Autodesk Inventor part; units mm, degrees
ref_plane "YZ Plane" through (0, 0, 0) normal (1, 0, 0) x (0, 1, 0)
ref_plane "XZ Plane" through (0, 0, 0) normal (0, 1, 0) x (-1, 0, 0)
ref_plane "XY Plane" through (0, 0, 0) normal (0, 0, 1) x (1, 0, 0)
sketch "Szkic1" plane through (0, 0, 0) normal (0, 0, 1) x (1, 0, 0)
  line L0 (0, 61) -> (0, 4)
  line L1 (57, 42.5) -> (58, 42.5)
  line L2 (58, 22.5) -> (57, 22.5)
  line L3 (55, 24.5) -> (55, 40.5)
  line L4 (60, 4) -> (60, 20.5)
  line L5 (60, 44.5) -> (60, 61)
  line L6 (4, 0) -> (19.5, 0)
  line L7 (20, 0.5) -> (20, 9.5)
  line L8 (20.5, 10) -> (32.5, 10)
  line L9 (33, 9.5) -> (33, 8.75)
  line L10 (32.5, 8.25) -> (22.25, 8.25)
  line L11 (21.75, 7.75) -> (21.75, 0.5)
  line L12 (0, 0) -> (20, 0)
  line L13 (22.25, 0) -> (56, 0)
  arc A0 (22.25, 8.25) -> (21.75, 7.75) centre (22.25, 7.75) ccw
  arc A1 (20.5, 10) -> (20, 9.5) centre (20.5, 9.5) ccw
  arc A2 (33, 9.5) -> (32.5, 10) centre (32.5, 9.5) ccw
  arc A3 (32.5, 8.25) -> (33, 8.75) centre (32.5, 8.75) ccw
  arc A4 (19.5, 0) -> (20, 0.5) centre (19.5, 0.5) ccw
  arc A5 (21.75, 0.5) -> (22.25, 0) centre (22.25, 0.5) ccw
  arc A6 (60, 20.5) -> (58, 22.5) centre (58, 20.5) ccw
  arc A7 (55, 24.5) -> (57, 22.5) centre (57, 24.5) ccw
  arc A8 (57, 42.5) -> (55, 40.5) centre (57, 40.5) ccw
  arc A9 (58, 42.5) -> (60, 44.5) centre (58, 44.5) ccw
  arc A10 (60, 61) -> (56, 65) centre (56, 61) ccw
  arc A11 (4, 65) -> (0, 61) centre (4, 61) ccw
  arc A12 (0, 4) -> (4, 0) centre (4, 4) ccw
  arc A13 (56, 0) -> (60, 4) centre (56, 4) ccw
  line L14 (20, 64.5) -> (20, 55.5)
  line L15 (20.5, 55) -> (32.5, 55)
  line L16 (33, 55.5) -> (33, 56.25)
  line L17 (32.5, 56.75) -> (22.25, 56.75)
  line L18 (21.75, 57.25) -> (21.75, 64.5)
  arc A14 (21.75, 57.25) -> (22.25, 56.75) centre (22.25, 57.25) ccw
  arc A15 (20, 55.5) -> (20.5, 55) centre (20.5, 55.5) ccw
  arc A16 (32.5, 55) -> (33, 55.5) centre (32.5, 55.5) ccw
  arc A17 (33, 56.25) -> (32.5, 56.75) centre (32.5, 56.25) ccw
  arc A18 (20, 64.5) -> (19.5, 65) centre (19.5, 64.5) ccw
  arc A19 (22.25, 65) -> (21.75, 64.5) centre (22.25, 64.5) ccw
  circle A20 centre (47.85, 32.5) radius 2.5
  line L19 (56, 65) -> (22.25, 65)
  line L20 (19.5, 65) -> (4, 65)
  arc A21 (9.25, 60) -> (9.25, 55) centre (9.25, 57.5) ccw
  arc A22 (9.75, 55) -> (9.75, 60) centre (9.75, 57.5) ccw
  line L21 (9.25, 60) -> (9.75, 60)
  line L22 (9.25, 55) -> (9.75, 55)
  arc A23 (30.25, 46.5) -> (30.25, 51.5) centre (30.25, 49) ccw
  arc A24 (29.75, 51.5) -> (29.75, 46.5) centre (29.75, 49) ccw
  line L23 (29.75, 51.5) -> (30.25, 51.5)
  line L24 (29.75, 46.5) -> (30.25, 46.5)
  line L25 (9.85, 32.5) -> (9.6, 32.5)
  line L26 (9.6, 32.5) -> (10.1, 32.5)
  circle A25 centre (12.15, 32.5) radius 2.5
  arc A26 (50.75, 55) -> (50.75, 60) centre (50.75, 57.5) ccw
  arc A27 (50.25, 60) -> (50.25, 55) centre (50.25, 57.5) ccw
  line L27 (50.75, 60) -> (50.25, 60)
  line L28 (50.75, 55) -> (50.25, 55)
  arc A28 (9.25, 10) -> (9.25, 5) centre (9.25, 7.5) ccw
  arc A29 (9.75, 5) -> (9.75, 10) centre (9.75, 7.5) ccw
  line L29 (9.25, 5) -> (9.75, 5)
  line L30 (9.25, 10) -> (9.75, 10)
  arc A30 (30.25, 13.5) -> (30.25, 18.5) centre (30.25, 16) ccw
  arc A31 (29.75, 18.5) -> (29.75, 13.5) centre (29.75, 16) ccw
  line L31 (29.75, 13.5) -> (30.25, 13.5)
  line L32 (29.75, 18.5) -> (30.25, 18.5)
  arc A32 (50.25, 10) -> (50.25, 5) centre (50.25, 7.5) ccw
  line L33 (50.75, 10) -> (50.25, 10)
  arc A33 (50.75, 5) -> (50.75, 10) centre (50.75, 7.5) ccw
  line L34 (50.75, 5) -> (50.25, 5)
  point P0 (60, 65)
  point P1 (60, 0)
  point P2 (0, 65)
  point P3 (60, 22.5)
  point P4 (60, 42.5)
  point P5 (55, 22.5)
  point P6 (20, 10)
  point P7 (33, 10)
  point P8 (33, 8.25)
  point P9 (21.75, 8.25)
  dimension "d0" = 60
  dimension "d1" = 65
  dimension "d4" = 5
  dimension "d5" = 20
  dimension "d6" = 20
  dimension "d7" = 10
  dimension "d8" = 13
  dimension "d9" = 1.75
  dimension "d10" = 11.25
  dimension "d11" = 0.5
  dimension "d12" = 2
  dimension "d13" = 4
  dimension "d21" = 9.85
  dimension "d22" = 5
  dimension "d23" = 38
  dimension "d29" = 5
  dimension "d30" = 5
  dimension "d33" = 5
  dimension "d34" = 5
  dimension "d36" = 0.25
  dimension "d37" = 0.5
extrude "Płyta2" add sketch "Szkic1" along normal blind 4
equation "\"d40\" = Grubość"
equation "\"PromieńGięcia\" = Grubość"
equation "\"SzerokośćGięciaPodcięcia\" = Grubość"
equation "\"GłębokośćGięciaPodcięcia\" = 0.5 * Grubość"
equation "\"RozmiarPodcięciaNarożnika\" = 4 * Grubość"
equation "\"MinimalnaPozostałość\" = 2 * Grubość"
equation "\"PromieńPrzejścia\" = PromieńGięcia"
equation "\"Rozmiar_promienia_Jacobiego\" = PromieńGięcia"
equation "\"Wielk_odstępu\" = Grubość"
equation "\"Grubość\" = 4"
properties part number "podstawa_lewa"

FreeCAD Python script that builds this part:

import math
import FreeCAD as App
import Part
import Sketcher
from FreeCAD import Vector
Q = App.Units.Quantity

doc = App.newDocument("Part")
body = doc.addObject("PartDesign::Body", "Body")

# Sketch on XY plane
sketch1 = body.newObject("Sketcher::SketchObject", "Sketch")
sketch1.AttachmentSupport = (doc.getObject("XY_Plane"), [""])
sketch1.MapMode = "FlatFace"
sketch1.addGeometry([
    Part.ArcOfCircle(Part.Circle(Vector(4, 61, 0), Vector(0, 0, 1), 4), math.radians(90), math.radians(180)),  # 0
    Part.LineSegment(Vector(0, 61, 0), Vector(0, 4, 0)),  # 1
    Part.ArcOfCircle(Part.Circle(Vector(4, 4, 0), Vector(0, 0, 1), 4), math.radians(180), math.radians(270)),  # 2
    Part.LineSegment(Vector(4, 0, 0), Vector(19.5, 0, 0)),  # 3
    Part.ArcOfCircle(Part.Circle(Vector(19.5, 0.5, 0), Vector(0, 0, 1), 0.5), math.radians(-90), math.radians(0)),  # 4
    Part.LineSegment(Vector(20, 0.5, 0), Vector(20, 9.5, 0)),  # 5
    Part.ArcOfCircle(Part.Circle(Vector(20.5, 9.5, 0), Vector(0, 0, 1), 0.5), math.radians(90), math.radians(180)),  # 6
    Part.LineSegment(Vector(20.5, 10, 0), Vector(32.5, 10, 0)),  # 7
    Part.ArcOfCircle(Part.Circle(Vector(32.5, 9.5, 0), Vector(0, 0, 1), 0.5), math.radians(0), math.radians(90)),  # 8
    Part.LineSegment(Vector(33, 9.5, 0), Vector(33, 8.8, 0)),  # 9
    Part.ArcOfCircle(Part.Circle(Vector(32.5, 8.8, 0), Vector(0, 0, 1), 0.5), math.radians(-90), math.radians(0)),  # 10
    Part.LineSegment(Vector(32.5, 8.2, 0), Vector(22.2, 8.2, 0)),  # 11
    Part.ArcOfCircle(Part.Circle(Vector(22.2, 7.8, 0), Vector(0, 0, 1), 0.5), math.radians(90), math.radians(180)),  # 12
    Part.LineSegment(Vector(21.8, 7.8, 0), Vector(21.8, 0.5, 0)),  # 13
    Part.ArcOfCircle(Part.Circle(Vector(22.2, 0.5, 0), Vector(0, 0, 1), 0.5), math.radians(180), math.radians(270)),  # 14
    Part.LineSegment(Vector(22.2, 0, 0), Vector(56, 0, 0)),  # 15
    Part.ArcOfCircle(Part.Circle(Vector(56, 4, 0), Vector(0, 0, 1), 4), math.radians(-90), math.radians(0)),  # 16
    Part.LineSegment(Vector(60, 4, 0), Vector(60, 20.5, 0)),  # 17
    Part.ArcOfCircle(Part.Circle(Vector(58, 20.5, 0), Vector(0, 0, 1), 2), math.radians(0), math.radians(90)),  # 18
    Part.LineSegment(Vector(58, 22.5, 0), Vector(57, 22.5, 0)),  # 19
    Part.ArcOfCircle(Part.Circle(Vector(57, 24.5, 0), Vector(0, 0, 1), 2), math.radians(180), math.radians(270)),  # 20
    Part.LineSegment(Vector(55, 24.5, 0), Vector(55, 40.5, 0)),  # 21
    Part.ArcOfCircle(Part.Circle(Vector(57, 40.5, 0), Vector(0, 0, 1), 2), math.radians(90), math.radians(180)),  # 22
    Part.LineSegment(Vector(57, 42.5, 0), Vector(58, 42.5, 0)),  # 23
    Part.ArcOfCircle(Part.Circle(Vector(58, 44.5, 0), Vector(0, 0, 1), 2), math.radians(-90), math.radians(0)),  # 24
    Part.LineSegment(Vector(60, 44.5, 0), Vector(60, 61, 0)),  # 25
    Part.ArcOfCircle(Part.Circle(Vector(56, 61, 0), Vector(0, 0, 1), 4), math.radians(0), math.radians(90)),  # 26
    Part.LineSegment(Vector(56, 65, 0), Vector(22.2, 65, 0)),  # 27
    Part.ArcOfCircle(Part.Circle(Vector(22.2, 64.5, 0), Vector(0, 0, 1), 0.5), math.radians(90), math.radians(180)),  # 28
    Part.LineSegment(Vector(21.8, 64.5, 0), Vector(21.8, 57.2, 0)),  # 29
    Part.ArcOfCircle(Part.Circle(Vector(22.2, 57.2, 0), Vector(0, 0, 1), 0.5), math.radians(180), math.radians(270)),  # 30
    Part.LineSegment(Vector(22.2, 56.8, 0), Vector(32.5, 56.8, 0)),  # 31
    Part.ArcOfCircle(Part.Circle(Vector(32.5, 56.2, 0), Vector(0, 0, 1), 0.5), math.radians(0), math.radians(90)),  # 32
    Part.LineSegment(Vector(33, 56.2, 0), Vector(33, 55.5, 0)),  # 33
    Part.ArcOfCircle(Part.Circle(Vector(32.5, 55.5, 0), Vector(0, 0, 1), 0.5), math.radians(-90), math.radians(0)),  # 34
    Part.LineSegment(Vector(32.5, 55, 0), Vector(20.5, 55, 0)),  # 35
    Part.ArcOfCircle(Part.Circle(Vector(20.5, 55.5, 0), Vector(0, 0, 1), 0.5), math.radians(180), math.radians(270)),  # 36
    Part.LineSegment(Vector(20, 55.5, 0), Vector(20, 64.5, 0)),  # 37
    Part.ArcOfCircle(Part.Circle(Vector(19.5, 64.5, 0), Vector(0, 0, 1), 0.5), math.radians(0), math.radians(90)),  # 38
    Part.LineSegment(Vector(19.5, 65, 0), Vector(4, 65, 0)),  # 39
    Part.ArcOfCircle(Part.Circle(Vector(9.2, 7.5, 0), Vector(0, 0, 1), 2.5), math.radians(90), math.radians(270)),  # 40
    Part.LineSegment(Vector(9.2, 10, 0), Vector(9.8, 10, 0)),  # 41
    Part.ArcOfCircle(Part.Circle(Vector(9.8, 7.5, 0), Vector(0, 0, 1), 2.5), math.radians(-90), math.radians(90)),  # 42
    Part.LineSegment(Vector(9.8, 5, 0), Vector(9.2, 5, 0)),  # 43
    Part.ArcOfCircle(Part.Circle(Vector(30.2, 16, 0), Vector(0, 0, 1), 2.5), math.radians(-90), math.radians(90)),  # 44
    Part.LineSegment(Vector(30.2, 13.5, 0), Vector(29.8, 13.5, 0)),  # 45
    Part.ArcOfCircle(Part.Circle(Vector(29.8, 16, 0), Vector(0, 0, 1), 2.5), math.radians(90), math.radians(270)),  # 46
    Part.LineSegment(Vector(29.8, 18.5, 0), Vector(30.2, 18.5, 0)),  # 47
    Part.ArcOfCircle(Part.Circle(Vector(50.2, 7.5, 0), Vector(0, 0, 1), 2.5), math.radians(90), math.radians(270)),  # 48
    Part.LineSegment(Vector(50.2, 10, 0), Vector(50.8, 10, 0)),  # 49
    Part.ArcOfCircle(Part.Circle(Vector(50.8, 7.5, 0), Vector(0, 0, 1), 2.5), math.radians(-90), math.radians(90)),  # 50
    Part.LineSegment(Vector(50.8, 5, 0), Vector(50.2, 5, 0)),  # 51
    Part.Circle(Vector(12.2, 32.5, 0), Vector(0, 0, 1), 2.5),  # 52
    Part.ArcOfCircle(Part.Circle(Vector(9.2, 57.5, 0), Vector(0, 0, 1), 2.5), math.radians(90), math.radians(270)),  # 53
    Part.LineSegment(Vector(9.2, 60, 0), Vector(9.8, 60, 0)),  # 54
    Part.ArcOfCircle(Part.Circle(Vector(9.8, 57.5, 0), Vector(0, 0, 1), 2.5), math.radians(-90), math.radians(90)),  # 55
    Part.LineSegment(Vector(9.8, 55, 0), Vector(9.2, 55, 0)),  # 56
    Part.Circle(Vector(47.9, 32.5, 0), Vector(0, 0, 1), 2.5),  # 57
    Part.ArcOfCircle(Part.Circle(Vector(30.2, 49, 0), Vector(0, 0, 1), 2.5), math.radians(-90), math.radians(90)),  # 58
    Part.LineSegment(Vector(30.2, 46.5, 0), Vector(29.8, 46.5, 0)),  # 59
    Part.ArcOfCircle(Part.Circle(Vector(29.8, 49, 0), Vector(0, 0, 1), 2.5), math.radians(90), math.radians(270)),  # 60
    Part.LineSegment(Vector(29.8, 51.5, 0), Vector(30.2, 51.5, 0)),  # 61
    Part.ArcOfCircle(Part.Circle(Vector(50.8, 57.5, 0), Vector(0, 0, 1), 2.5), math.radians(-90), math.radians(90)),  # 62
    Part.LineSegment(Vector(50.8, 55, 0), Vector(50.2, 55, 0)),  # 63
    Part.ArcOfCircle(Part.Circle(Vector(50.2, 57.5, 0), Vector(0, 0, 1), 2.5), math.radians(90), math.radians(270)),  # 64
    Part.LineSegment(Vector(50.2, 60, 0), Vector(50.8, 60, 0)),  # 65
], False)
sketch1.addConstraint([
    Sketcher.Constraint("Tangent", 0, 2, 1, 1),
    Sketcher.Constraint("Tangent", 1, 2, 2, 1),
    Sketcher.Constraint("Tangent", 2, 2, 3, 1),
    Sketcher.Constraint("Tangent", 3, 2, 4, 1),
    Sketcher.Constraint("Tangent", 4, 2, 5, 1),
    Sketcher.Constraint("Tangent", 5, 2, 6, 2),
    Sketcher.Constraint("Tangent", 6, 1, 7, 1),
    Sketcher.Constraint("Tangent", 7, 2, 8, 2),
    Sketcher.Constraint("Tangent", 8, 1, 9, 1),
    Sketcher.Constraint("Tangent", 9, 2, 10, 2),
    Sketcher.Constraint("Tangent", 10, 1, 11, 1),
    Sketcher.Constraint("Tangent", 11, 2, 12, 1),
    Sketcher.Constraint("Tangent", 12, 2, 13, 1),
    Sketcher.Constraint("Tangent", 13, 2, 14, 1),
    Sketcher.Constraint("Tangent", 14, 2, 15, 1),
    Sketcher.Constraint("Tangent", 15, 2, 16, 1),
    Sketcher.Constraint("Tangent", 16, 2, 17, 1),
    Sketcher.Constraint("Tangent", 17, 2, 18, 1),
    Sketcher.Constraint("Tangent", 18, 2, 19, 1),
    Sketcher.Constraint("Tangent", 19, 2, 20, 2),
    Sketcher.Constraint("Tangent", 20, 1, 21, 1),
    Sketcher.Constraint("Tangent", 21, 2, 22, 2),
    Sketcher.Constraint("Tangent", 22, 1, 23, 1),
    Sketcher.Constraint("Tangent", 23, 2, 24, 1),
    Sketcher.Constraint("Tangent", 24, 2, 25, 1),
    Sketcher.Constraint("Tangent", 25, 2, 26, 1),
    Sketcher.Constraint("Tangent", 26, 2, 27, 1),
    Sketcher.Constraint("Tangent", 27, 2, 28, 1),
    Sketcher.Constraint("Tangent", 28, 2, 29, 1),
    Sketcher.Constraint("Tangent", 29, 2, 30, 1),
    Sketcher.Constraint("Tangent", 30, 2, 31, 1),
    Sketcher.Constraint("Tangent", 31, 2, 32, 2),
    Sketcher.Constraint("Tangent", 32, 1, 33, 1),
    Sketcher.Constraint("Tangent", 33, 2, 34, 2),
    Sketcher.Constraint("Tangent", 34, 1, 35, 1),
    Sketcher.Constraint("Tangent", 35, 2, 36, 2),
    Sketcher.Constraint("Tangent", 36, 1, 37, 1),
    Sketcher.Constraint("Tangent", 37, 2, 38, 1),
    Sketcher.Constraint("Tangent", 38, 2, 39, 1),
    Sketcher.Constraint("Tangent", 39, 2, 0, 1),
    Sketcher.Constraint("Tangent", 40, 1, 41, 1),
    Sketcher.Constraint("Tangent", 41, 2, 42, 2),
    Sketcher.Constraint("Tangent", 42, 1, 43, 1),
    Sketcher.Constraint("Tangent", 43, 2, 40, 2),
    Sketcher.Constraint("Tangent", 44, 1, 45, 1),
    Sketcher.Constraint("Tangent", 45, 2, 46, 2),
    Sketcher.Constraint("Tangent", 46, 1, 47, 1),
    Sketcher.Constraint("Tangent", 47, 2, 44, 2),
    Sketcher.Constraint("Tangent", 48, 1, 49, 1),
    Sketcher.Constraint("Tangent", 49, 2, 50, 2),
    Sketcher.Constraint("Tangent", 50, 1, 51, 1),
    Sketcher.Constraint("Tangent", 51, 2, 48, 2),
    Sketcher.Constraint("Tangent", 53, 1, 54, 1),
    Sketcher.Constraint("Tangent", 54, 2, 55, 2),
    Sketcher.Constraint("Tangent", 55, 1, 56, 1),
    Sketcher.Constraint("Tangent", 56, 2, 53, 2),
    Sketcher.Constraint("Tangent", 58, 1, 59, 1),
    Sketcher.Constraint("Tangent", 59, 2, 60, 2),
    Sketcher.Constraint("Tangent", 60, 1, 61, 1),
    Sketcher.Constraint("Tangent", 61, 2, 58, 2),
    Sketcher.Constraint("Tangent", 62, 1, 63, 1),
    Sketcher.Constraint("Tangent", 63, 2, 64, 2),
    Sketcher.Constraint("Tangent", 64, 1, 65, 1),
    Sketcher.Constraint("Tangent", 65, 2, 62, 2),
    Sketcher.Constraint("Vertical", 1),
    Sketcher.Constraint("Horizontal", 3),
    Sketcher.Constraint("Vertical", 5),
    Sketcher.Constraint("Horizontal", 7),
    Sketcher.Constraint("Vertical", 9),
    Sketcher.Constraint("Horizontal", 11),
    Sketcher.Constraint("Vertical", 13),
    Sketcher.Constraint("Horizontal", 15),
    Sketcher.Constraint("Vertical", 17),
    Sketcher.Constraint("Horizontal", 19),
    Sketcher.Constraint("Vertical", 21),
    Sketcher.Constraint("Horizontal", 23),
    Sketcher.Constraint("Vertical", 25),
    Sketcher.Constraint("Horizontal", 27),
    Sketcher.Constraint("Vertical", 29),
    Sketcher.Constraint("Horizontal", 31),
    Sketcher.Constraint("Vertical", 33),
    Sketcher.Constraint("Horizontal", 35),
    Sketcher.Constraint("Vertical", 37),
    Sketcher.Constraint("Horizontal", 39),
    Sketcher.Constraint("Horizontal", 41),
    Sketcher.Constraint("Horizontal", 43),
    Sketcher.Constraint("Horizontal", 45),
    Sketcher.Constraint("Horizontal", 47),
    Sketcher.Constraint("Horizontal", 49),
    Sketcher.Constraint("Horizontal", 51),
    Sketcher.Constraint("Horizontal", 54),
    Sketcher.Constraint("Horizontal", 56),
    Sketcher.Constraint("Horizontal", 59),
    Sketcher.Constraint("Horizontal", 61),
    Sketcher.Constraint("Horizontal", 63),
    Sketcher.Constraint("Horizontal", 65),
    Sketcher.Constraint("Equal", 0, 2),
    Sketcher.Constraint("Equal", 4, 6),
    Sketcher.Constraint("Equal", 6, 8),
    Sketcher.Constraint("Equal", 8, 10),
    Sketcher.Constraint("Equal", 10, 12),
    Sketcher.Constraint("Equal", 12, 14),
    Sketcher.Constraint("Equal", 2, 16),
    Sketcher.Constraint("Equal", 18, 20),
    Sketcher.Constraint("Equal", 20, 22),
    Sketcher.Constraint("Equal", 22, 24),
    Sketcher.Constraint("Equal", 16, 26),
    Sketcher.Constraint("Equal", 14, 28),
    Sketcher.Constraint("Equal", 28, 30),
    Sketcher.Constraint("Equal", 30, 32),
    Sketcher.Constraint("Equal", 32, 34),
    Sketcher.Constraint("Equal", 34, 36),
    Sketcher.Constraint("Equal", 36, 38),
    Sketcher.Constraint("Equal", 42, 44),
    Sketcher.Constraint("Equal", 46, 48),
    Sketcher.Constraint("Equal", 50, 52),
    Sketcher.Constraint("Equal", 52, 53),
    Sketcher.Constraint("Equal", 55, 57),
    Sketcher.Constraint("Equal", 57, 58),
    Sketcher.Constraint("Equal", 60, 62),
    Sketcher.Constraint("PointOnObject", 0, 2, -2),
    Sketcher.Constraint("PointOnObject", 2, 2, -1),
    Sketcher.Constraint("PointOnObject", 14, 2, -1),
    Sketcher.Constraint("Horizontal", 0, 3, 26, 3),
    Sketcher.Constraint("Horizontal", 42, 3, 48, 3),
    Sketcher.Constraint("Horizontal", 52, 3, 57, 3),
    Sketcher.Constraint("Horizontal", 55, 3, 62, 3),
    Sketcher.Constraint("Horizontal", 7, 2, 40, 1),
    Sketcher.Constraint("Horizontal", 35, 2, 55, 1),
    Sketcher.Constraint("Vertical", 18, 3, 24, 3),
    Sketcher.Constraint("Vertical", 14, 3, 28, 3),
    Sketcher.Constraint("Vertical", 10, 3, 32, 3),
    Sketcher.Constraint("Vertical", 6, 3, 36, 3),
    Sketcher.Constraint("Vertical", 40, 3, 53, 3),
    Sketcher.Constraint("Vertical", 42, 3, 55, 3),
    Sketcher.Constraint("Vertical", 44, 3, 58, 3),
    Sketcher.Constraint("Vertical", 46, 3, 60, 3),
    Sketcher.Constraint("Vertical", 50, 3, 62, 3),
    Sketcher.Constraint("Vertical", 48, 3, 64, 3),
    Sketcher.Constraint("Equal", 43, 45),
    Sketcher.Constraint("Equal", 47, 49),
    Sketcher.Constraint("Equal", 17, 25),
    Sketcher.Constraint("Equal", 13, 29),
    Sketcher.Constraint("Equal", 9, 33),
    Sketcher.Constraint("Diameter", 52, Q("5 mm")),
    Sketcher.Constraint("Radius", 0, Q("4 mm")),
    Sketcher.Constraint("Radius", 18, Q("2 mm")),
    Sketcher.Constraint("Radius", 4, Q("0.5 mm")),
    Sketcher.Constraint("DistanceX", 41, 1, 41, 2, Q("0.5 mm")),
    Sketcher.Constraint("DistanceX", -1, 1, 4, 2, Q("20 mm")),
    Sketcher.Constraint("DistanceY", -1, 1, 6, 1, Q("10 mm")),
    Sketcher.Constraint("DistanceX", -1, 1, 16, 2, Q("60 mm")),
    Sketcher.Constraint("DistanceY", -1, 1, 26, 2, Q("65 mm")),
    Sketcher.Constraint("DistanceX", 7, 1, 7, 2, Q("12 mm")),
    Sketcher.Constraint("DistanceX", 19, 2, 19, 1, Q("1 mm")),
    Sketcher.Constraint("DistanceY", 21, 1, 21, 2, Q("16 mm")),
    Sketcher.Constraint("DistanceY", -1, 1, 44, 3, Q("16 mm")),
    Sketcher.Constraint("DistanceY", -1, 1, 58, 3, Q("49 mm")),
    Sketcher.Constraint("DistanceX", 11, 2, 11, 1, Q("10.25 mm")),
    Sketcher.Constraint("DistanceY", 9, 2, 9, 1, Q("0.75 mm")),
    Sketcher.Constraint("DistanceY", -1, 1, 52, 3, Q("32.5 mm")),
    Sketcher.Constraint("DistanceX", -1, 1, 40, 3, Q("9.25 mm")),
    Sketcher.Constraint("DistanceX", -1, 1, 44, 3, Q("30.25 mm")),
    Sketcher.Constraint("DistanceX", -1, 1, 48, 3, Q("50.25 mm")),
    Sketcher.Constraint("DistanceX", -1, 1, 52, 3, Q("12.15 mm")),
    Sketcher.Constraint("DistanceX", -1, 1, 57, 3, Q("47.85 mm")),
])
pad1 = body.newObject("PartDesign::Pad", "Pad")
pad1.Profile = sketch1
pad1.Length = 4

doc.recompute()
